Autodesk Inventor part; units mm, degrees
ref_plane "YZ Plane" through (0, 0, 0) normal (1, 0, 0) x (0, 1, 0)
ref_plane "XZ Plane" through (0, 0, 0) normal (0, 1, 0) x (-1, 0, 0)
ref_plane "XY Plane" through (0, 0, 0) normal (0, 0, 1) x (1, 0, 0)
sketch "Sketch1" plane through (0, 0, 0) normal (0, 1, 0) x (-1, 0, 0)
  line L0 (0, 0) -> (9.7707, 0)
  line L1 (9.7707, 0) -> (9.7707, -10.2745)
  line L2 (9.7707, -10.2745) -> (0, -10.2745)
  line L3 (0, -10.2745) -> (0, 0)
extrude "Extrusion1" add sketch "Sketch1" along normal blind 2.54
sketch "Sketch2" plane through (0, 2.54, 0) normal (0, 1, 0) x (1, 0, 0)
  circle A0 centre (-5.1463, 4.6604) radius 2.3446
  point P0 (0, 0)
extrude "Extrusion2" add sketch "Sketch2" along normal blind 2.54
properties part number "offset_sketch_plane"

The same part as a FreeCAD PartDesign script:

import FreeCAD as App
import Part
import Sketcher

V = App.Vector
Q = App.Units.Quantity


def add_polygon(sketch, points):
    """Adds a closed chain of lines whose ends are joined by coincident constraints."""
    first, n = sketch.GeometryCount, len(points)
    for a, b in zip(points, points[1:] + points[:1]):
        sketch.addGeometry(Part.LineSegment(App.Vector(*a, 0), App.Vector(*b, 0)), False)
    for i in range(n):
        sketch.addConstraint(Sketcher.Constraint("Coincident", first + i, 2, first + (i + 1) % n, 1))

doc = App.newDocument("Part")
body = doc.addObject("PartDesign::Body", "Body")

sketch1 = doc.addObject("Sketcher::SketchObject", "Sketch")
body.addObject(sketch1)
sketch1.AttachmentSupport = (doc.XZ_Plane, [""])
sketch1.MapMode = "FlatFace"
add_polygon(sketch1, [(-9.7707, 0), (0, 0), (0, -10.2745), (-9.7707, -10.2745)])
sketch1.addConstraint([
    Sketcher.Constraint("Horizontal", 0),
    Sketcher.Constraint("Vertical", 1),
    Sketcher.Constraint("Horizontal", 2),
    Sketcher.Constraint("Vertical", 3),
    Sketcher.Constraint("Coincident", 0, 2, -1, 1),
    Sketcher.Constraint("DistanceY", 1, 2, 1, 1, Q("0.4045 in")),
    Sketcher.Constraint("DistanceX", 0, 1, 0, 2, Q("9.7707 mm")),
])
pad1 = doc.addObject("PartDesign::Pad", "Pad")
body.addObject(pad1)
pad1.Profile = sketch1
pad1.Length = Q("0.1 in")
pad1.Reversed = True

sketch2 = doc.addObject("Sketcher::SketchObject", "Sketch001")
body.addObject(sketch2)
sketch2.AttachmentSupport = (doc.XZ_Plane, [""])
sketch2.MapMode = "FlatFace"
sketch2.AttachmentOffset = App.Placement(V(0, 0, -0.1 * 25.4), App.Rotation())
sketch2.addGeometry(Part.Circle(V(-5.1463, -4.6604, 0), V(0, 0, 1), 2.3446), False)
sketch2.addConstraint([
    Sketcher.Constraint("Diameter", 0, Q("4.6892 mm")),
    Sketcher.Constraint("DistanceX", 0, 3, -1, 1, Q("0.2026 in")),
    Sketcher.Constraint("DistanceY", 0, 3, -1, 1, Q("4.6604 mm")),
])
pad2 = doc.addObject("PartDesign::Pad", "Pad001")
body.addObject(pad2)
pad2.Profile = sketch2
pad2.Length = Q("0.1 in")
pad2.Reversed = True

doc.recompute()
